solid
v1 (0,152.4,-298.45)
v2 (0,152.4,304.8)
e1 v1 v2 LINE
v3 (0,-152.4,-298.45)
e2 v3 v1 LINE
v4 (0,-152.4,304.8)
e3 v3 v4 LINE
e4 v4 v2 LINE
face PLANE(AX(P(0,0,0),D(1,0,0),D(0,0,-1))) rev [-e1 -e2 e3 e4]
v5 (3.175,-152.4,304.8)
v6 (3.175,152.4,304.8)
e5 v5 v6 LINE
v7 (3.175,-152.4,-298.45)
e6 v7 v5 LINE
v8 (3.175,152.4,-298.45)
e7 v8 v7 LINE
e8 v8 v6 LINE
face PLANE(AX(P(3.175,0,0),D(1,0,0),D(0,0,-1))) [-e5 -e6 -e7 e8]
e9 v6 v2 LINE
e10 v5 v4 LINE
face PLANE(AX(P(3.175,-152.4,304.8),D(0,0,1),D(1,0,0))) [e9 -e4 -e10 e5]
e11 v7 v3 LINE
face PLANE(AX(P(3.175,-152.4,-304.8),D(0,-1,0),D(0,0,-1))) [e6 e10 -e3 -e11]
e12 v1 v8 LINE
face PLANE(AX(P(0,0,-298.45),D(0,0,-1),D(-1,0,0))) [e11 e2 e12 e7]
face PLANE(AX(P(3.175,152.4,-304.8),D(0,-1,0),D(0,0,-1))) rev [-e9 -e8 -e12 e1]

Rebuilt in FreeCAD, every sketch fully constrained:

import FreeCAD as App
import Part
import Sketcher
Q = App.Units.Quantity


def add_polygon(sketch, points):
    """Adds a closed chain of lines whose ends are joined by coincident constraints."""
    first, n = sketch.GeometryCount, len(points)
    for a, b in zip(points, points[1:] + points[:1]):
        sketch.addGeometry(Part.LineSegment(App.Vector(*a, 0), App.Vector(*b, 0)), False)
    for i in range(n):
        sketch.addConstraint(Sketcher.Constraint("Coincident", first + i, 2, first + (i + 1) % n, 1))

doc = App.newDocument("Part")
body = doc.addObject("PartDesign::Body", "Body")

# Sketch on YZ plane
sketch1 = body.newObject("Sketcher::SketchObject", "Sketch")
sketch1.AttachmentSupport = (doc.getObject("YZ_Plane"), [""])
sketch1.MapMode = "FlatFace"
add_polygon(sketch1, [(152.4, 304.8), (-152.4, 304.8), (-152.4, -304.8), (152.4, -304.8)])  # lines 0-3
sketch1.addConstraint(Sketcher.Constraint("Horizontal", 0))
sketch1.addConstraint(Sketcher.Constraint("Vertical", 1))
sketch1.addConstraint(Sketcher.Constraint("Horizontal", 2))
sketch1.addConstraint(Sketcher.Constraint("Vertical", 3))
sketch1.addConstraint(Sketcher.Constraint("Symmetric", 0, 2, 2, 2, -1, 1))
sketch1.addConstraint(Sketcher.Constraint("DistanceX", 0, 2, 0, 1, Q("12 in")))
sketch1.addConstraint(Sketcher.Constraint("DistanceY", 1, 2, 1, 1, Q("24 in")))
pad1 = body.newObject("PartDesign::Pad", "Pad")
pad1.Profile = sketch1
pad1.Length = Q("0.125 in")

# Sketch on XY plane
sketch2 = body.newObject("Sketcher::SketchObject", "Sketch001")
sketch2.AttachmentSupport = (doc.getObject("XY_Plane"), [""])
sketch2.MapMode = "FlatFace"
sketch2.AttachmentOffset = App.Placement(App.Vector(0, 0, -12 * 25.4), App.Rotation())
add_polygon(sketch2, [(3.175, 152.4), (3.175, -152.4), (0, -152.4), (0, 152.4)])  # lines 0-3
sketch2.addConstraint(Sketcher.Constraint("Vertical", 0))
sketch2.addConstraint(Sketcher.Constraint("Horizontal", 1))
sketch2.addConstraint(Sketcher.Constraint("Vertical", 2))
sketch2.addConstraint(Sketcher.Constraint("Horizontal", 3))
sketch2.addConstraint(Sketcher.Constraint("Symmetric", 1, 2, 2, 2, -1, 1))
sketch2.addConstraint(Sketcher.Constraint("DistanceY", 0, 2, 0, 1, Q("12 in")))
sketch2.addConstraint(Sketcher.Constraint("DistanceX", 1, 2, 1, 1, Q("0.125 in")))
pocket1 = body.newObject("PartDesign::Pocket", "Pocket")
pocket1.Profile = sketch2
pocket1.Length = Q("0.25 in")
pocket1.Reversed = True

doc.recompute()
